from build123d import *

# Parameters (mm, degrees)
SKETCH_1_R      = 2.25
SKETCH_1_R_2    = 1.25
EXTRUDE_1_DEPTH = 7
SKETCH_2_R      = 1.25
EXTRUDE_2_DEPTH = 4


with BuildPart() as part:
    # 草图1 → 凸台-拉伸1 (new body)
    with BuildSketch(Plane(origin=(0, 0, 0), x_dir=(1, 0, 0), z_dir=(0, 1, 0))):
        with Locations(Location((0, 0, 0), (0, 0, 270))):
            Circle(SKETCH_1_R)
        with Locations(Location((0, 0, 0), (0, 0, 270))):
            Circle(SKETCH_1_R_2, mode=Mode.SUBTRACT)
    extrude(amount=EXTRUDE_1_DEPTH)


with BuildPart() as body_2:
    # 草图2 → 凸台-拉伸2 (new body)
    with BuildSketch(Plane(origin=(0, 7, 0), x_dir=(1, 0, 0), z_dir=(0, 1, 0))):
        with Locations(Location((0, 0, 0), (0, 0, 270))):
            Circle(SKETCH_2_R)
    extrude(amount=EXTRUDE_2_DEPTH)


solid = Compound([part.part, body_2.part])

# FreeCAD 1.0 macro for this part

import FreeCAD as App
import Part
import Sketcher
Q = App.Units.Quantity

doc = App.newDocument("Part")
body = doc.addObject("PartDesign::Body", "Body")

# Sketch on XZ plane
sketch1 = body.newObject("Sketcher::SketchObject", "Sketch")
sketch1.AttachmentSupport = (doc.getObject("XZ_Plane"), [""])
sketch1.MapMode = "FlatFace"
sketch1.addGeometry([
    Part.Circle(App.Vector(0, 0, 0), App.Vector(0, 0, 1), 2.25),
    Part.Circle(App.Vector(0, 0, 0), App.Vector(0, 0, 1), 1.25),
], False)
sketch1.addConstraint([
    Sketcher.Constraint("Coincident", 0, 3, -1, 1),
    Sketcher.Constraint("Coincident", 1, 3, -1, 1),
    Sketcher.Constraint("Diameter", 0, Q("4.5 mm")),
    Sketcher.Constraint("Diameter", 1, Q("2.5 mm")),
])
pad1 = body.newObject("PartDesign::Pad", "Pad")
pad1.Profile = sketch1
pad1.Length = 7
pad1.Reversed = True
body2 = doc.addObject("PartDesign::Body", "Body001")

# Sketch on XZ plane
sketch2 = body2.newObject("Sketcher::SketchObject", "Sketch001")
sketch2.AttachmentSupport = (doc.getObject("XZ_Plane001"), [""])
sketch2.MapMode = "FlatFace"
sketch2.AttachmentOffset = App.Placement(App.Vector(0, 0, -7), App.Rotation())
sketch2.addGeometry(Part.Circle(App.Vector(0, 0, 0), App.Vector(0, 0, 1), 1.25), False)
sketch2.addConstraint([
    Sketcher.Constraint("Coincident", 0, 3, -1, 1),
    Sketcher.Constraint("Diameter", 0, Q("2.5 mm")),
])
pad2 = body2.newObject("PartDesign::Pad", "Pad001")
pad2.Profile = sketch2
pad2.Length = 4
pad2.Reversed = True

doc.recompute()
